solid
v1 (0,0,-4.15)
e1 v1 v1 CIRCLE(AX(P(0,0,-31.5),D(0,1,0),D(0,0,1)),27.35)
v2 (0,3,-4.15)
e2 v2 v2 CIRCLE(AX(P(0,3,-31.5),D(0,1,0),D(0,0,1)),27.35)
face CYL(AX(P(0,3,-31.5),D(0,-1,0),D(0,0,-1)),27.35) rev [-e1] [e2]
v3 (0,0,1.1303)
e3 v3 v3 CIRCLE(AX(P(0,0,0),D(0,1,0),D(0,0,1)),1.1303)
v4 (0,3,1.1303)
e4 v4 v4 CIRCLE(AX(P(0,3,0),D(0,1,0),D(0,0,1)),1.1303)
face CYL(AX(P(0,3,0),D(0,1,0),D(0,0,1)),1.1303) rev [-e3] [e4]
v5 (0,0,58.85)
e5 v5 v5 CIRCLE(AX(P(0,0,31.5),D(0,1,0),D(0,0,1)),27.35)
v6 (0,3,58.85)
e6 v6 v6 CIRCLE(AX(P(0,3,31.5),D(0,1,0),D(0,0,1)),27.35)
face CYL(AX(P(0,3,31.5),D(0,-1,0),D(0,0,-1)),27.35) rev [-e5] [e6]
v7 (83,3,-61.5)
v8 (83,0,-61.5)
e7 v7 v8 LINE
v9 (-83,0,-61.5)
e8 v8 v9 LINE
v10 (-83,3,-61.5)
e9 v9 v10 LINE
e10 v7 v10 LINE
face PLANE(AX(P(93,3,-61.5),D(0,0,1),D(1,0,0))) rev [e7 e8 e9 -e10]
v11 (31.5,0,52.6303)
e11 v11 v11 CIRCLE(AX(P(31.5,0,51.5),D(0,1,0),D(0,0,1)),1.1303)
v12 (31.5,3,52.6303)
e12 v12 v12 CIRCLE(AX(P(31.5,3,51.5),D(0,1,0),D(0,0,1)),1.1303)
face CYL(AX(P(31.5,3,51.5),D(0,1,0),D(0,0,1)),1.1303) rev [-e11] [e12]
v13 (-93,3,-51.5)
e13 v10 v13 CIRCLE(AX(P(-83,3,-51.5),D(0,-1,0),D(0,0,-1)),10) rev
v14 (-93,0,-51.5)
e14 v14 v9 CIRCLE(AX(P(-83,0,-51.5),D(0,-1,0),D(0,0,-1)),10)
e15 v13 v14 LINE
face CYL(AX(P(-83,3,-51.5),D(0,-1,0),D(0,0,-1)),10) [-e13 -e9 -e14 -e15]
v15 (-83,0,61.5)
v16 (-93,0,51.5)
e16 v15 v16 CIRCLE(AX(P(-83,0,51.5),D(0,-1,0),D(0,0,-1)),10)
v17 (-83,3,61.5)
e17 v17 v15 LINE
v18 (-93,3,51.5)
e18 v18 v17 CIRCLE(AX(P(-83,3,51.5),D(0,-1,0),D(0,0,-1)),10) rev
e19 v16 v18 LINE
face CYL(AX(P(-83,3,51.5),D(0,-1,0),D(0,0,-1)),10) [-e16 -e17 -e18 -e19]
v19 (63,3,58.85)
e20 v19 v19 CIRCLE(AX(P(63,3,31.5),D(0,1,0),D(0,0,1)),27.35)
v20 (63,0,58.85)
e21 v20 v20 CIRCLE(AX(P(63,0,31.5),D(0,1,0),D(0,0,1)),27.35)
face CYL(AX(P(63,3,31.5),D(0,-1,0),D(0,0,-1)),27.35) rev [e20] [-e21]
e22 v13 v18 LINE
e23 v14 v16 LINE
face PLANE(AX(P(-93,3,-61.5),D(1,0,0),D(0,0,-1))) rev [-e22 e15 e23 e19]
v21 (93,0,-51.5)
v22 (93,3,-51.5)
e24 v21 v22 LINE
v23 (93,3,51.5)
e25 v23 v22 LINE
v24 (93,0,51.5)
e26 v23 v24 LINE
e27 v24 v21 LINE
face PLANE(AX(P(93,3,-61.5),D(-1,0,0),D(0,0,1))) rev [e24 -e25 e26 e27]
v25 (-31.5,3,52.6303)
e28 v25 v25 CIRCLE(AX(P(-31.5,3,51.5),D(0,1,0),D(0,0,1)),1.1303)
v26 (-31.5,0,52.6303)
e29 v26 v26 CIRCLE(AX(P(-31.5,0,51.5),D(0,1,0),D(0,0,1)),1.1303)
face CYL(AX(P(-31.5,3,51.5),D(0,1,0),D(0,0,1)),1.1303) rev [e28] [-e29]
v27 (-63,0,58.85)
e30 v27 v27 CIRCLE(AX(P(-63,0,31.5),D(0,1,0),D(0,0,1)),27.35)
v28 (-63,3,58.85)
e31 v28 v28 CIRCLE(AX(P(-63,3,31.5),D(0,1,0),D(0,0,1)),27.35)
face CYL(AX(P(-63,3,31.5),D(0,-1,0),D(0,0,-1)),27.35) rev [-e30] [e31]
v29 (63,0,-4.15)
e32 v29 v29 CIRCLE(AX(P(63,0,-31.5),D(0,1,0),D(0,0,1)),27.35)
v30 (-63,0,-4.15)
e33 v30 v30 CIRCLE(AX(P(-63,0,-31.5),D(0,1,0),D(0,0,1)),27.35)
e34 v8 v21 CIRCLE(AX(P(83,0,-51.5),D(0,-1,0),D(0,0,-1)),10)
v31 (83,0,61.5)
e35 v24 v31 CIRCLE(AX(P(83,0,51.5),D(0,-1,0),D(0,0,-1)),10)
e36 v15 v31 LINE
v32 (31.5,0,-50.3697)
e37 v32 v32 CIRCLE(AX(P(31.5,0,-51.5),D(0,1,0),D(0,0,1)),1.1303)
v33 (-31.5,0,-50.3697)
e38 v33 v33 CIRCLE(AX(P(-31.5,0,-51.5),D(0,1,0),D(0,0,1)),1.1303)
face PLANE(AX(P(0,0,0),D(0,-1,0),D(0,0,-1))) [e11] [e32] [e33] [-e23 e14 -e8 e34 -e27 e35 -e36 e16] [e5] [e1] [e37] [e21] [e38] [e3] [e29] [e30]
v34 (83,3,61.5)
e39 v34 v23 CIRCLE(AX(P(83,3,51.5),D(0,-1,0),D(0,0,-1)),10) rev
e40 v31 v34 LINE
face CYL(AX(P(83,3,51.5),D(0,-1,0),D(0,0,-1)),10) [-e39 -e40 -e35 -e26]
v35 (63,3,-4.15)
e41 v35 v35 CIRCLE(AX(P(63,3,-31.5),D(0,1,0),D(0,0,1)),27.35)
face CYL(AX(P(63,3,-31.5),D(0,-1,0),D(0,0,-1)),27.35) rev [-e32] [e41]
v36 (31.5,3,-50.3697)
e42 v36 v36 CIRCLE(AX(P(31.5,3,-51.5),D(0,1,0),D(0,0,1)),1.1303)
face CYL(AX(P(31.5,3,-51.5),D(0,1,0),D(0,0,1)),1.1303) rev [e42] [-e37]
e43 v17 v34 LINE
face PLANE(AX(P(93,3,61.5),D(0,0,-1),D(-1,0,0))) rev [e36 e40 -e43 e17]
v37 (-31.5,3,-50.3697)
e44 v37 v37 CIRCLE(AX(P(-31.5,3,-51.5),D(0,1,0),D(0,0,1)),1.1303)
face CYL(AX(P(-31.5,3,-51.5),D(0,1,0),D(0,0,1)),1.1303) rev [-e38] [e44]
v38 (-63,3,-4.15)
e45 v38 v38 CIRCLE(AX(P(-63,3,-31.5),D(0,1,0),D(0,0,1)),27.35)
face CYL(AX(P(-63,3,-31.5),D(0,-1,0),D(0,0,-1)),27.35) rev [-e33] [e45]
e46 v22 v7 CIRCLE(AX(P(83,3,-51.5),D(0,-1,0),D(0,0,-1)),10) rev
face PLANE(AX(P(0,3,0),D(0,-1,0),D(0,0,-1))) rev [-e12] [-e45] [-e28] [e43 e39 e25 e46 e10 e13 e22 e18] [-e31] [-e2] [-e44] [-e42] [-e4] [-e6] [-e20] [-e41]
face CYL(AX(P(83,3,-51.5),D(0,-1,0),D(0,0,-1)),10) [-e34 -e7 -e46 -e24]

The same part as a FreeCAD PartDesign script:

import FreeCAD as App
import Part
import Sketcher
from FreeCAD import Vector


def edges_at(feature, points):
    """Names of the edges that pass closest to the given points."""
    edges = feature.Shape.Edges
    near = lambda p: min(range(len(edges)), key=lambda i: edges[i].distToShape(Part.Vertex(*p))[0])
    return sorted({f"Edge{near(p) + 1}" for p in points})


def add_polygon(sketch, points):
    """Adds a closed chain of lines whose ends are joined by coincident constraints."""
    first, n = sketch.GeometryCount, len(points)
    for a, b in zip(points, points[1:] + points[:1]):
        sketch.addGeometry(Part.LineSegment(App.Vector(*a, 0), App.Vector(*b, 0)), False)
    for i in range(n):
        sketch.addConstraint(Sketcher.Constraint("Coincident", first + i, 2, first + (i + 1) % n, 1))

doc = App.newDocument("Part")
body = doc.addObject("PartDesign::Body", "Body")

# Sketch on XZ plane
sketch1 = doc.addObject("Sketcher::SketchObject", "Sketch")
body.addObject(sketch1)
sketch1.AttachmentSupport = (doc.XZ_Plane, [""])
sketch1.MapMode = "FlatFace"
add_polygon(sketch1, [(-93, -62), (-93, 62), (93, 62), (93, -62)])  # lines 0-3
sketch1.addGeometry(Part.Circle(Vector(-63, 32, 0), Vector(0, 0, 1), 27), False)  # 4
sketch1.addGeometry(Part.Circle(Vector(0, 32, 0), Vector(0, 0, 1), 27), False)  # 5
sketch1.addGeometry(Part.Circle(Vector(63, 32, 0), Vector(0, 0, 1), 27), False)  # 6
sketch1.addGeometry(Part.Circle(Vector(-63, -32, 0), Vector(0, 0, 1), 27), False)  # 7
sketch1.addGeometry(Part.Circle(Vector(0, -32, 0), Vector(0, 0, 1), 27), False)  # 8
sketch1.addGeometry(Part.Circle(Vector(63, -32, 0), Vector(0, 0, 1), 27), False)  # 9
sketch1.addConstraint(Sketcher.Constraint("Vertical", 0))
sketch1.addConstraint(Sketcher.Constraint("Horizontal", 1))
sketch1.addConstraint(Sketcher.Constraint("Vertical", 2))
sketch1.addConstraint(Sketcher.Constraint("Horizontal", 3))
sketch1.addConstraint(Sketcher.Constraint("Equal", 4, 5))
sketch1.addConstraint(Sketcher.Constraint("Equal", 5, 6))
sketch1.addConstraint(Sketcher.Constraint("Equal", 6, 7))
sketch1.addConstraint(Sketcher.Constraint("Equal", 7, 8))
sketch1.addConstraint(Sketcher.Constraint("Equal", 8, 9))
sketch1.addConstraint(Sketcher.Constraint("Symmetric", 6, 3, 7, 3, -1, 1))
sketch1.addConstraint(Sketcher.Constraint("Symmetric", 5, 3, 8, 3, -1, 1))
sketch1.addConstraint(Sketcher.Constraint("Symmetric", 4, 3, 9, 3, -1, 1))
sketch1.addConstraint(Sketcher.Constraint("Symmetric", 0, 2, 2, 2, -1, 1))
sketch1.addConstraint(Sketcher.Constraint("Symmetric", 4, 3, 6, 3, -2))
sketch1.addConstraint(Sketcher.Constraint("PointOnObject", 5, 3, -2))
sketch1.addConstraint(Sketcher.Constraint("Horizontal", 4, 3, 5, 3))
sketch1.addConstraint(Sketcher.Constraint("Diameter", 4, 54.7))
sketch1.addConstraint(Sketcher.Constraint("DistanceX", 1, 1, 1, 2, 186.0))
sketch1.addConstraint(Sketcher.Constraint("DistanceY", 0, 1, 0, 2, 123.0))
sketch1.addConstraint(Sketcher.Constraint("DistanceX", 4, 3, -1, 1, 63.0))
sketch1.addConstraint(Sketcher.Constraint("DistanceY", 7, 3, 4, 3, 63.0))
pad1 = doc.addObject("PartDesign::Pad", "Pad")
body.addObject(pad1)
pad1.Profile = sketch1
pad1.Length = 3
pad1.Reversed = True
doc.recompute()

fillet = doc.addObject("PartDesign::Fillet", "Fillet")
body.addObject(fillet)
fillet.Base = (pad1, edges_at(pad1, [
    (-93, 1.5, -61.5),
    (93, 1.5, -61.5),
    (93, 1.5, 61.5),
    (-93, 1.5, 61.5),
]))
fillet.Radius = 10

# Sketch on XZ plane
sketch2 = doc.addObject("Sketcher::SketchObject", "Sketch001")
body.addObject(sketch2)
sketch2.AttachmentSupport = (doc.XZ_Plane, [""])
sketch2.MapMode = "FlatFace"
sketch2.AttachmentOffset = App.Placement(Vector(0, 0, -3), App.Rotation())
sketch2.addGeometry(Part.Circle(Vector(0, 0, 0), Vector(0, 0, 1), 1.1), False)
sketch2.addGeometry(Part.Circle(Vector(31.5, -51.5, 0), Vector(0, 0, 1), 1.1), False)
sketch2.addGeometry(Part.Circle(Vector(-31.5, -51.5, 0), Vector(0, 0, 1), 1.1), False)
sketch2.addGeometry(Part.Circle(Vector(-31.5, 51.5, 0), Vector(0, 0, 1), 1.1), False)
sketch2.addGeometry(Part.Circle(Vector(31.5, 51.5, 0), Vector(0, 0, 1), 1.1), False)
sketch2.addConstraint(Sketcher.Constraint("Coincident", 0, 3, -1, 1))
sketch2.addConstraint(Sketcher.Constraint("Equal", 0, 1))
sketch2.addConstraint(Sketcher.Constraint("Equal", 1, 2))
sketch2.addConstraint(Sketcher.Constraint("Equal", 2, 3))
sketch2.addConstraint(Sketcher.Constraint("Equal", 3, 4))
sketch2.addConstraint(Sketcher.Constraint("Symmetric", 1, 3, 3, 3, -1, 1))
sketch2.addConstraint(Sketcher.Constraint("Symmetric", 2, 3, 4, 3, -1, 1))
sketch2.addConstraint(Sketcher.Constraint("Symmetric", 1, 3, 2, 3, -2))
sketch2.addConstraint(Sketcher.Constraint("DistanceX", 2, 3, 1, 3, 63.0))
sketch2.addConstraint(Sketcher.Constraint("DistanceY", 2, 3, 3, 3, 103.0))
sketch2.addConstraint(Sketcher.Constraint("Diameter", 0, 2.2606))
doc.recompute()
hole = doc.addObject("PartDesign::Hole", "Hole")
body.addObject(hole)
hole.Profile = sketch2
hole.ThreadType = "None"
hole.Diameter = 2.2606
hole.DepthType = "ThroughAll"
hole.Reversed = True

doc.recompute()
